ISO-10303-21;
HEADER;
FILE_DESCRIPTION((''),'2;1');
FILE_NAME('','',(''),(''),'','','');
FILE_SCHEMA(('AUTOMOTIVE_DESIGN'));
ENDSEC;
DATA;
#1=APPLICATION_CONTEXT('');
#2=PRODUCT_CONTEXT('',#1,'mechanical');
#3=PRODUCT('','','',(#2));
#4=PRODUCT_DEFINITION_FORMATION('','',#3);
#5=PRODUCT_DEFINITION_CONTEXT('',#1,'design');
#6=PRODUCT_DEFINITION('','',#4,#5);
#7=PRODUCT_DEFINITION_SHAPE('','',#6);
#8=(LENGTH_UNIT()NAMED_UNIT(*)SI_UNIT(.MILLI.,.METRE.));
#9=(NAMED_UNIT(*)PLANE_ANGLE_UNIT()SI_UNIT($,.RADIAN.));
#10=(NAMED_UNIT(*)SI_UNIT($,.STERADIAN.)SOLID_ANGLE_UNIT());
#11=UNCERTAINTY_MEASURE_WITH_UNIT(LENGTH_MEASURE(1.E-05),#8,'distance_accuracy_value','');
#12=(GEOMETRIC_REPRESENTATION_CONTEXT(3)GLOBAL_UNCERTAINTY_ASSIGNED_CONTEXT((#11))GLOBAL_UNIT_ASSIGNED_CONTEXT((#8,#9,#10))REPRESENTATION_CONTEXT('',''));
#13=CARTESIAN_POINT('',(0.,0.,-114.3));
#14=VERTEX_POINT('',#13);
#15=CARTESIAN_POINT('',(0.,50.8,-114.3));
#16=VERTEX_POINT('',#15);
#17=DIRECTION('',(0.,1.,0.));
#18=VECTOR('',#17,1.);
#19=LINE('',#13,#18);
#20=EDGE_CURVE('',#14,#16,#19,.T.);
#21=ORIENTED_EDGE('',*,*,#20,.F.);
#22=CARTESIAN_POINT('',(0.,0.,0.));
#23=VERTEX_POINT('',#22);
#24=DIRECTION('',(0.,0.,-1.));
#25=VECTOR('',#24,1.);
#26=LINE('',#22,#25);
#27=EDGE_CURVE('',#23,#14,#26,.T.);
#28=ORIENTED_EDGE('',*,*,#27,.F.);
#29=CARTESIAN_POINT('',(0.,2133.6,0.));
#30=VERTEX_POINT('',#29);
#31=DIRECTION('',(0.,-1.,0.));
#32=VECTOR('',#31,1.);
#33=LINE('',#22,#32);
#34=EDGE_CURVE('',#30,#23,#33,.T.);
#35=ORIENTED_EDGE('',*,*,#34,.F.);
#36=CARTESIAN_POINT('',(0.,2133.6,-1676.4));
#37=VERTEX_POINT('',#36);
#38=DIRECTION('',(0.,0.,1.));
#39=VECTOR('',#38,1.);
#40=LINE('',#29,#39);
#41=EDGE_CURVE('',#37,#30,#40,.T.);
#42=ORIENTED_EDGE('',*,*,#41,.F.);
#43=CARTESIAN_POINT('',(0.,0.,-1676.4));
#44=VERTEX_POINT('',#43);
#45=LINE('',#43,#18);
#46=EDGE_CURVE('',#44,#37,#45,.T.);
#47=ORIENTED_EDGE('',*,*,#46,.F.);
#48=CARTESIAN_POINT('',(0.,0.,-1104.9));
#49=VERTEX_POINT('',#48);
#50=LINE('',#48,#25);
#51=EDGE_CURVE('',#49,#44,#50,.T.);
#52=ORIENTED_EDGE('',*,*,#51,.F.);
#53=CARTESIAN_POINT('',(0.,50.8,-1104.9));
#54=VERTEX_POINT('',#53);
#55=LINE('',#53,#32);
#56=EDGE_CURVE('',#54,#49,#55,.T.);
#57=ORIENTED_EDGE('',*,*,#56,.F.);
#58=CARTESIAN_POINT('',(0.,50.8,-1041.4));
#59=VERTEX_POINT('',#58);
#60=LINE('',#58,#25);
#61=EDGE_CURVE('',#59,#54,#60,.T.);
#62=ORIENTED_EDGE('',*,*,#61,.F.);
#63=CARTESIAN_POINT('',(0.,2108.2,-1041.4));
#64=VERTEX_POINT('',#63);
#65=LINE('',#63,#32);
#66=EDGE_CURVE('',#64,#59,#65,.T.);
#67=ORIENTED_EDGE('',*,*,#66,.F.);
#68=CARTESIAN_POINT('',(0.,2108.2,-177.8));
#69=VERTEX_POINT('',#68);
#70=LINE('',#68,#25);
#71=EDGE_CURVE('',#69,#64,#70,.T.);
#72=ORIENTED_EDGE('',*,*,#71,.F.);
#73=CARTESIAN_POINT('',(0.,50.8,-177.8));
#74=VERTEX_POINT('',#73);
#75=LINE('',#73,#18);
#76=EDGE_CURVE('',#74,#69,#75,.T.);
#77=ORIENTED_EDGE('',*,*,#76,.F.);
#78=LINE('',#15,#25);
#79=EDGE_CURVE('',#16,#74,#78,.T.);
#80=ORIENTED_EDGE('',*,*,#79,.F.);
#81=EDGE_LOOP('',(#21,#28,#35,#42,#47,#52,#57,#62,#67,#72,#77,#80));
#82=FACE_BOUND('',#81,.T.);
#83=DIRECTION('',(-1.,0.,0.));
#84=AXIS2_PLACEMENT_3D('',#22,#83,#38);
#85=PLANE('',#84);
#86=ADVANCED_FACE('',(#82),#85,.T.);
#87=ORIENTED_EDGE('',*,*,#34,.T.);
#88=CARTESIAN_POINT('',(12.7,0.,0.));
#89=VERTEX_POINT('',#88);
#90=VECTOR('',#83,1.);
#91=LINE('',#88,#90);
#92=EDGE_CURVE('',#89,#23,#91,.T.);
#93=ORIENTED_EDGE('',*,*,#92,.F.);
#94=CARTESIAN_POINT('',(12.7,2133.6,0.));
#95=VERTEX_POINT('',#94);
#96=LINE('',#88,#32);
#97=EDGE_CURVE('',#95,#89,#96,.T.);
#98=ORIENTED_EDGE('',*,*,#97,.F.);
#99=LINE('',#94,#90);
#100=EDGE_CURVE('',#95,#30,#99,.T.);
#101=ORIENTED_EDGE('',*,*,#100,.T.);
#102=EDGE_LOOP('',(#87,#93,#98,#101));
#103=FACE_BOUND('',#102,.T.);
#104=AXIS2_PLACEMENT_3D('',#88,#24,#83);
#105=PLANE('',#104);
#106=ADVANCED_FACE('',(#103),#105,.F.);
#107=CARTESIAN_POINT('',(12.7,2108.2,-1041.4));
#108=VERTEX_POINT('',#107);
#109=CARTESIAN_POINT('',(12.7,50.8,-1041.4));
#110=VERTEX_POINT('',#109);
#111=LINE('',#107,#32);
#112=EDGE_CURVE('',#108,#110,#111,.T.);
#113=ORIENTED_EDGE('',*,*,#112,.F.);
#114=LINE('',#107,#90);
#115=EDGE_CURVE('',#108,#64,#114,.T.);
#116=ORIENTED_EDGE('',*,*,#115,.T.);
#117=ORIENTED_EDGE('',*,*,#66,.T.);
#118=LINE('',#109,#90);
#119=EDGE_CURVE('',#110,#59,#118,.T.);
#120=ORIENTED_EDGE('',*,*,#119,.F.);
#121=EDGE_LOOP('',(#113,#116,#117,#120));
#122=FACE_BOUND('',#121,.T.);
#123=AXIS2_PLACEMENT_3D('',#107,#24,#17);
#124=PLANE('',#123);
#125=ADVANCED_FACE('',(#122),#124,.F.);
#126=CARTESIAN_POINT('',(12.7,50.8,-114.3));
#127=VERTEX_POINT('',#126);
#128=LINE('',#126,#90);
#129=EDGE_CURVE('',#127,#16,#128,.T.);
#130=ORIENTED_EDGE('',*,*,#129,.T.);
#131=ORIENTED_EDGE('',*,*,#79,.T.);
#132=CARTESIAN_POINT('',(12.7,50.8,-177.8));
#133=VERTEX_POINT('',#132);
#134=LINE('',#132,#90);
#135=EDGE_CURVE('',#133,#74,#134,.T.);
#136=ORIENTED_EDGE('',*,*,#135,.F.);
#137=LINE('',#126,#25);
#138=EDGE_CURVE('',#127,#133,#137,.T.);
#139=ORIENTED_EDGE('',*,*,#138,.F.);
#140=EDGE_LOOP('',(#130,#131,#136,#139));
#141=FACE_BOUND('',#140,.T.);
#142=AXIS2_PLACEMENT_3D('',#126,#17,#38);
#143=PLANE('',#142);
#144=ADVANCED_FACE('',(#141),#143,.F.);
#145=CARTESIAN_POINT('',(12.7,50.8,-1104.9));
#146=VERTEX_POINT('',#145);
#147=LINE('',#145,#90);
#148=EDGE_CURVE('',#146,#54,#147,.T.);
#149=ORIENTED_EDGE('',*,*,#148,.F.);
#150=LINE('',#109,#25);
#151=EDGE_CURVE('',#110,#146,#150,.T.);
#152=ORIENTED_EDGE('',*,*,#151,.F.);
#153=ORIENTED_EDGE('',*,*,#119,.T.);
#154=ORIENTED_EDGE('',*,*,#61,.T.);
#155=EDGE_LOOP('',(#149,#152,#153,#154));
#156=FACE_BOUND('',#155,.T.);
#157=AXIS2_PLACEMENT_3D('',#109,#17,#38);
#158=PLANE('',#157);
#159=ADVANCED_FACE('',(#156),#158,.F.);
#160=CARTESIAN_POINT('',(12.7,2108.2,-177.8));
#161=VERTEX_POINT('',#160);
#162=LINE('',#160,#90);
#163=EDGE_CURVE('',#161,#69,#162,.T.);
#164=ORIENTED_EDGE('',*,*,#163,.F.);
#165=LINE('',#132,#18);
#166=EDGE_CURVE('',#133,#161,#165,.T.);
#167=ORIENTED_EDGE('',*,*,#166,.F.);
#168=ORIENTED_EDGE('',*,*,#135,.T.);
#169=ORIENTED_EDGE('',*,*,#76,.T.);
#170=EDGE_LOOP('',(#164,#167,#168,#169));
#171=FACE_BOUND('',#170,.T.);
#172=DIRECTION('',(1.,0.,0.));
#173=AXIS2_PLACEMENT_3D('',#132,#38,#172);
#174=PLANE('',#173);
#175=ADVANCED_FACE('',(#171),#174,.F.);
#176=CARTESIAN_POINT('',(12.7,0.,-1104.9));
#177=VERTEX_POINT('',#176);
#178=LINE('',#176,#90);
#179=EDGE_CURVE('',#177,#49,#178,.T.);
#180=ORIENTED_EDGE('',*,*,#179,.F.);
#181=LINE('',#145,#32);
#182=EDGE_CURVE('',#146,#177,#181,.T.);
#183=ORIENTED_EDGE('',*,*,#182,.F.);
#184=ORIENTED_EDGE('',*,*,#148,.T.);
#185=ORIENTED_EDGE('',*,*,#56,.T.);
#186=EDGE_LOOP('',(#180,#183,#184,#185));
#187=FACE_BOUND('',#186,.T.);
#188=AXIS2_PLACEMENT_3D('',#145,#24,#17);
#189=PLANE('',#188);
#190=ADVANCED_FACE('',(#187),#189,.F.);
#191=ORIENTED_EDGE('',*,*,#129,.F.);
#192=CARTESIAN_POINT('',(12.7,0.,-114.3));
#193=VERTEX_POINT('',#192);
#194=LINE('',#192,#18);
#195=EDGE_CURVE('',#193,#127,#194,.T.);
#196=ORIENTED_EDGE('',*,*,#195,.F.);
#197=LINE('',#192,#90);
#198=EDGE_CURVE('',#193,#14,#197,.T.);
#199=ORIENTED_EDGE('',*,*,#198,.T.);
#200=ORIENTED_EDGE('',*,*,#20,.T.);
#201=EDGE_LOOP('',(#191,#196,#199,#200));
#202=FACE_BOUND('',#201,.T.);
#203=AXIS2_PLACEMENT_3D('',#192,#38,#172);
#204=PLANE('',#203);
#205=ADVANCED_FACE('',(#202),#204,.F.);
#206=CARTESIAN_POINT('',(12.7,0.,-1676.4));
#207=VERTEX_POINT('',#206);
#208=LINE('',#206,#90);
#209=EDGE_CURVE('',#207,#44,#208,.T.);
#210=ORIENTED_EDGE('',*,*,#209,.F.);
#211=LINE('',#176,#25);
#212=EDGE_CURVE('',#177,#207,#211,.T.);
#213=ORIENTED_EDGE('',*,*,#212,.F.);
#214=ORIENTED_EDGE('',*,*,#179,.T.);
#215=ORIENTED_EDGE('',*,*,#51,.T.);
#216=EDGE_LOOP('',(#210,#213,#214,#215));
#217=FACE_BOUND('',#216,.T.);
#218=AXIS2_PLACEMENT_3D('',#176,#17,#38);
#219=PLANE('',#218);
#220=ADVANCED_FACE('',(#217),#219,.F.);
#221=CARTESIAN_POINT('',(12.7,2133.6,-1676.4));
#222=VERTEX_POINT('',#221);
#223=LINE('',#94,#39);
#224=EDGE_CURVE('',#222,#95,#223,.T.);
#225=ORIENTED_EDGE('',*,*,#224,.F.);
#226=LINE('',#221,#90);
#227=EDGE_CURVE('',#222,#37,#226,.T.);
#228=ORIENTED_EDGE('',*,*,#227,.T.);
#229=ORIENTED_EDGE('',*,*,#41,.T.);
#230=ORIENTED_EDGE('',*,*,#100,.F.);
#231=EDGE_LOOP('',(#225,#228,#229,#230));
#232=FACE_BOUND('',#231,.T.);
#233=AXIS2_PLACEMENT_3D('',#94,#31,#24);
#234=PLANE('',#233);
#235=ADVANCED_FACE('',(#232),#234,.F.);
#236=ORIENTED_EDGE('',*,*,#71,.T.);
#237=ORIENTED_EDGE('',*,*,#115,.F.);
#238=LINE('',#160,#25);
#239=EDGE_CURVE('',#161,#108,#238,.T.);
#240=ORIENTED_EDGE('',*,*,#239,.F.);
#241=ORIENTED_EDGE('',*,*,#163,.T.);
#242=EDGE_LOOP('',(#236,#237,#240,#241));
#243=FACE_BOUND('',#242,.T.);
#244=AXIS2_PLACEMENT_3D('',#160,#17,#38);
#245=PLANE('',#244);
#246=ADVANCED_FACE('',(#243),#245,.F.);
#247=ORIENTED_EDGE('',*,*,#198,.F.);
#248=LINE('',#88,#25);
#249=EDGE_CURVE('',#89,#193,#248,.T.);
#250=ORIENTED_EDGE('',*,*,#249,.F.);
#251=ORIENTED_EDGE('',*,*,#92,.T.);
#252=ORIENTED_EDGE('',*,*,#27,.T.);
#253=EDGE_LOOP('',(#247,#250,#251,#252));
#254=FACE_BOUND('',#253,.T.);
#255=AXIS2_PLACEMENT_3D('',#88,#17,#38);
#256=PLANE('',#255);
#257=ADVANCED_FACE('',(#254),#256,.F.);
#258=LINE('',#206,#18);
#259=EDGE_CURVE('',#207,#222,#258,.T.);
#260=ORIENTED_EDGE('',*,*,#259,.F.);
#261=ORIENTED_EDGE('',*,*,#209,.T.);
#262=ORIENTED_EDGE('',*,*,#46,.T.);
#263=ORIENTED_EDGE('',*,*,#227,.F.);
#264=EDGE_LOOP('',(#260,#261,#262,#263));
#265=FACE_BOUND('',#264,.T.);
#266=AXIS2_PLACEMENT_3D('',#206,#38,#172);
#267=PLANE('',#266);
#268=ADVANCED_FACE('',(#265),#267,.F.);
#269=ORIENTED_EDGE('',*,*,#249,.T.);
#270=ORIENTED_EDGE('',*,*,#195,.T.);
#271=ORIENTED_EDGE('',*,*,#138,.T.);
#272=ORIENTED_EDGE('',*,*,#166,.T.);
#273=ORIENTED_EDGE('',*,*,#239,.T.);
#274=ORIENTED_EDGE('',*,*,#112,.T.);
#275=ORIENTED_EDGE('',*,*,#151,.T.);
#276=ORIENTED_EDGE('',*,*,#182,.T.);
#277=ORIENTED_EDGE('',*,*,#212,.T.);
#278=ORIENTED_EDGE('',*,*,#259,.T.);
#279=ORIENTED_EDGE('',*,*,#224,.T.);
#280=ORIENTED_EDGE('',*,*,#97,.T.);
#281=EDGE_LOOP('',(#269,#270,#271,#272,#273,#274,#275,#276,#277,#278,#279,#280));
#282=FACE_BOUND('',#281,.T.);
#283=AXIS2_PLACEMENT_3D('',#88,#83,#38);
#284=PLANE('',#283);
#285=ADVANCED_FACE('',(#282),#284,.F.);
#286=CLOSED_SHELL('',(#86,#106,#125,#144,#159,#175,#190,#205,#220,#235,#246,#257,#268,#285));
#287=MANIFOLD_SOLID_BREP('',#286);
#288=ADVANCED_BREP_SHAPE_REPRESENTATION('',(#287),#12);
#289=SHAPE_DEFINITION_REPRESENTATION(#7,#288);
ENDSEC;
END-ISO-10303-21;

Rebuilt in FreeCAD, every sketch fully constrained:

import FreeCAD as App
import Part
import Sketcher
from FreeCAD import Vector
Q = App.Units.Quantity

doc = App.newDocument("Part")
body = doc.addObject("PartDesign::Body", "Body")

sketch1 = body.newObject("Sketcher::SketchObject", "Sketch")
sketch1.AttachmentSupport = (doc.getObject("YZ_Plane"), [""])
sketch1.MapMode = "FlatFace"
sketch1.addGeometry([
    Part.LineSegment(Vector(0, 0, 0), Vector(0, -114, 0)),
    Part.LineSegment(Vector(0, -114, 0), Vector(51, -114, 0)),
    Part.LineSegment(Vector(51, -114, 0), Vector(51, -178, 0)),
    Part.LineSegment(Vector(51, -178, 0), Vector(2108, -178, 0)),
    Part.LineSegment(Vector(2108, -178, 0), Vector(2108, -1041, 0)),
    Part.LineSegment(Vector(2108, -1041, 0), Vector(51, -1041, 0)),
    Part.LineSegment(Vector(51, -1041, 0), Vector(51, -1105, 0)),
    Part.LineSegment(Vector(51, -1105, 0), Vector(0, -1105, 0)),
    Part.LineSegment(Vector(0, -1105, 0), Vector(0, -1676, 0)),
    Part.LineSegment(Vector(0, -1676, 0), Vector(2134, -1676, 0)),
    Part.LineSegment(Vector(2134, -1676, 0), Vector(2134, 0, 0)),
    Part.LineSegment(Vector(2134, 0, 0), Vector(0, 0, 0)),
], False)
sketch1.addConstraint([
    Sketcher.Constraint("Coincident", 0, 2, 1, 1),
    Sketcher.Constraint("Coincident", 1, 2, 2, 1),
    Sketcher.Constraint("Coincident", 2, 2, 3, 1),
    Sketcher.Constraint("Coincident", 3, 2, 4, 1),
    Sketcher.Constraint("Coincident", 4, 2, 5, 1),
    Sketcher.Constraint("Coincident", 5, 2, 6, 1),
    Sketcher.Constraint("Coincident", 6, 2, 7, 1),
    Sketcher.Constraint("Coincident", 7, 2, 8, 1),
    Sketcher.Constraint("Coincident", 8, 2, 9, 1),
    Sketcher.Constraint("Coincident", 9, 2, 10, 1),
    Sketcher.Constraint("Coincident", 10, 2, 11, 1),
    Sketcher.Constraint("Coincident", 11, 2, 0, 1),
    Sketcher.Constraint("Vertical", 0),
    Sketcher.Constraint("Horizontal", 1),
    Sketcher.Constraint("Vertical", 2),
    Sketcher.Constraint("Horizontal", 3),
    Sketcher.Constraint("Vertical", 4),
    Sketcher.Constraint("Horizontal", 5),
    Sketcher.Constraint("Vertical", 6),
    Sketcher.Constraint("Horizontal", 7),
    Sketcher.Constraint("Vertical", 8),
    Sketcher.Constraint("Horizontal", 9),
    Sketcher.Constraint("Vertical", 10),
    Sketcher.Constraint("Horizontal", 11),
    Sketcher.Constraint("Coincident", 11, 2, -1, 1),
    Sketcher.Constraint("PointOnObject", 7, 2, -2),
    Sketcher.Constraint("Vertical", 2, 2, 5, 2),
    Sketcher.Constraint("Equal", 2, 6),
    Sketcher.Constraint("DistanceX", 1, 1, 1, 2, Q("2 in")),
    Sketcher.Constraint("DistanceX", 3, 1, 3, 2, Q("81 in")),
    Sketcher.Constraint("DistanceX", 9, 1, 9, 2, Q("84 in")),
    Sketcher.Constraint("DistanceY", 4, 2, 4, 1, Q("34 in")),
    Sketcher.Constraint("DistanceY", 10, 1, 10, 2, Q("66 in")),
    Sketcher.Constraint("DistanceY", 0, 2, 0, 1, Q("4.5 in")),
    Sketcher.Constraint("DistanceY", 2, 2, 2, 1, Q("2.5 in")),
])
pad1 = body.newObject("PartDesign::Pad", "Pad")
pad1.Profile = sketch1
pad1.Length = Q("0.5 in")

doc.recompute()
